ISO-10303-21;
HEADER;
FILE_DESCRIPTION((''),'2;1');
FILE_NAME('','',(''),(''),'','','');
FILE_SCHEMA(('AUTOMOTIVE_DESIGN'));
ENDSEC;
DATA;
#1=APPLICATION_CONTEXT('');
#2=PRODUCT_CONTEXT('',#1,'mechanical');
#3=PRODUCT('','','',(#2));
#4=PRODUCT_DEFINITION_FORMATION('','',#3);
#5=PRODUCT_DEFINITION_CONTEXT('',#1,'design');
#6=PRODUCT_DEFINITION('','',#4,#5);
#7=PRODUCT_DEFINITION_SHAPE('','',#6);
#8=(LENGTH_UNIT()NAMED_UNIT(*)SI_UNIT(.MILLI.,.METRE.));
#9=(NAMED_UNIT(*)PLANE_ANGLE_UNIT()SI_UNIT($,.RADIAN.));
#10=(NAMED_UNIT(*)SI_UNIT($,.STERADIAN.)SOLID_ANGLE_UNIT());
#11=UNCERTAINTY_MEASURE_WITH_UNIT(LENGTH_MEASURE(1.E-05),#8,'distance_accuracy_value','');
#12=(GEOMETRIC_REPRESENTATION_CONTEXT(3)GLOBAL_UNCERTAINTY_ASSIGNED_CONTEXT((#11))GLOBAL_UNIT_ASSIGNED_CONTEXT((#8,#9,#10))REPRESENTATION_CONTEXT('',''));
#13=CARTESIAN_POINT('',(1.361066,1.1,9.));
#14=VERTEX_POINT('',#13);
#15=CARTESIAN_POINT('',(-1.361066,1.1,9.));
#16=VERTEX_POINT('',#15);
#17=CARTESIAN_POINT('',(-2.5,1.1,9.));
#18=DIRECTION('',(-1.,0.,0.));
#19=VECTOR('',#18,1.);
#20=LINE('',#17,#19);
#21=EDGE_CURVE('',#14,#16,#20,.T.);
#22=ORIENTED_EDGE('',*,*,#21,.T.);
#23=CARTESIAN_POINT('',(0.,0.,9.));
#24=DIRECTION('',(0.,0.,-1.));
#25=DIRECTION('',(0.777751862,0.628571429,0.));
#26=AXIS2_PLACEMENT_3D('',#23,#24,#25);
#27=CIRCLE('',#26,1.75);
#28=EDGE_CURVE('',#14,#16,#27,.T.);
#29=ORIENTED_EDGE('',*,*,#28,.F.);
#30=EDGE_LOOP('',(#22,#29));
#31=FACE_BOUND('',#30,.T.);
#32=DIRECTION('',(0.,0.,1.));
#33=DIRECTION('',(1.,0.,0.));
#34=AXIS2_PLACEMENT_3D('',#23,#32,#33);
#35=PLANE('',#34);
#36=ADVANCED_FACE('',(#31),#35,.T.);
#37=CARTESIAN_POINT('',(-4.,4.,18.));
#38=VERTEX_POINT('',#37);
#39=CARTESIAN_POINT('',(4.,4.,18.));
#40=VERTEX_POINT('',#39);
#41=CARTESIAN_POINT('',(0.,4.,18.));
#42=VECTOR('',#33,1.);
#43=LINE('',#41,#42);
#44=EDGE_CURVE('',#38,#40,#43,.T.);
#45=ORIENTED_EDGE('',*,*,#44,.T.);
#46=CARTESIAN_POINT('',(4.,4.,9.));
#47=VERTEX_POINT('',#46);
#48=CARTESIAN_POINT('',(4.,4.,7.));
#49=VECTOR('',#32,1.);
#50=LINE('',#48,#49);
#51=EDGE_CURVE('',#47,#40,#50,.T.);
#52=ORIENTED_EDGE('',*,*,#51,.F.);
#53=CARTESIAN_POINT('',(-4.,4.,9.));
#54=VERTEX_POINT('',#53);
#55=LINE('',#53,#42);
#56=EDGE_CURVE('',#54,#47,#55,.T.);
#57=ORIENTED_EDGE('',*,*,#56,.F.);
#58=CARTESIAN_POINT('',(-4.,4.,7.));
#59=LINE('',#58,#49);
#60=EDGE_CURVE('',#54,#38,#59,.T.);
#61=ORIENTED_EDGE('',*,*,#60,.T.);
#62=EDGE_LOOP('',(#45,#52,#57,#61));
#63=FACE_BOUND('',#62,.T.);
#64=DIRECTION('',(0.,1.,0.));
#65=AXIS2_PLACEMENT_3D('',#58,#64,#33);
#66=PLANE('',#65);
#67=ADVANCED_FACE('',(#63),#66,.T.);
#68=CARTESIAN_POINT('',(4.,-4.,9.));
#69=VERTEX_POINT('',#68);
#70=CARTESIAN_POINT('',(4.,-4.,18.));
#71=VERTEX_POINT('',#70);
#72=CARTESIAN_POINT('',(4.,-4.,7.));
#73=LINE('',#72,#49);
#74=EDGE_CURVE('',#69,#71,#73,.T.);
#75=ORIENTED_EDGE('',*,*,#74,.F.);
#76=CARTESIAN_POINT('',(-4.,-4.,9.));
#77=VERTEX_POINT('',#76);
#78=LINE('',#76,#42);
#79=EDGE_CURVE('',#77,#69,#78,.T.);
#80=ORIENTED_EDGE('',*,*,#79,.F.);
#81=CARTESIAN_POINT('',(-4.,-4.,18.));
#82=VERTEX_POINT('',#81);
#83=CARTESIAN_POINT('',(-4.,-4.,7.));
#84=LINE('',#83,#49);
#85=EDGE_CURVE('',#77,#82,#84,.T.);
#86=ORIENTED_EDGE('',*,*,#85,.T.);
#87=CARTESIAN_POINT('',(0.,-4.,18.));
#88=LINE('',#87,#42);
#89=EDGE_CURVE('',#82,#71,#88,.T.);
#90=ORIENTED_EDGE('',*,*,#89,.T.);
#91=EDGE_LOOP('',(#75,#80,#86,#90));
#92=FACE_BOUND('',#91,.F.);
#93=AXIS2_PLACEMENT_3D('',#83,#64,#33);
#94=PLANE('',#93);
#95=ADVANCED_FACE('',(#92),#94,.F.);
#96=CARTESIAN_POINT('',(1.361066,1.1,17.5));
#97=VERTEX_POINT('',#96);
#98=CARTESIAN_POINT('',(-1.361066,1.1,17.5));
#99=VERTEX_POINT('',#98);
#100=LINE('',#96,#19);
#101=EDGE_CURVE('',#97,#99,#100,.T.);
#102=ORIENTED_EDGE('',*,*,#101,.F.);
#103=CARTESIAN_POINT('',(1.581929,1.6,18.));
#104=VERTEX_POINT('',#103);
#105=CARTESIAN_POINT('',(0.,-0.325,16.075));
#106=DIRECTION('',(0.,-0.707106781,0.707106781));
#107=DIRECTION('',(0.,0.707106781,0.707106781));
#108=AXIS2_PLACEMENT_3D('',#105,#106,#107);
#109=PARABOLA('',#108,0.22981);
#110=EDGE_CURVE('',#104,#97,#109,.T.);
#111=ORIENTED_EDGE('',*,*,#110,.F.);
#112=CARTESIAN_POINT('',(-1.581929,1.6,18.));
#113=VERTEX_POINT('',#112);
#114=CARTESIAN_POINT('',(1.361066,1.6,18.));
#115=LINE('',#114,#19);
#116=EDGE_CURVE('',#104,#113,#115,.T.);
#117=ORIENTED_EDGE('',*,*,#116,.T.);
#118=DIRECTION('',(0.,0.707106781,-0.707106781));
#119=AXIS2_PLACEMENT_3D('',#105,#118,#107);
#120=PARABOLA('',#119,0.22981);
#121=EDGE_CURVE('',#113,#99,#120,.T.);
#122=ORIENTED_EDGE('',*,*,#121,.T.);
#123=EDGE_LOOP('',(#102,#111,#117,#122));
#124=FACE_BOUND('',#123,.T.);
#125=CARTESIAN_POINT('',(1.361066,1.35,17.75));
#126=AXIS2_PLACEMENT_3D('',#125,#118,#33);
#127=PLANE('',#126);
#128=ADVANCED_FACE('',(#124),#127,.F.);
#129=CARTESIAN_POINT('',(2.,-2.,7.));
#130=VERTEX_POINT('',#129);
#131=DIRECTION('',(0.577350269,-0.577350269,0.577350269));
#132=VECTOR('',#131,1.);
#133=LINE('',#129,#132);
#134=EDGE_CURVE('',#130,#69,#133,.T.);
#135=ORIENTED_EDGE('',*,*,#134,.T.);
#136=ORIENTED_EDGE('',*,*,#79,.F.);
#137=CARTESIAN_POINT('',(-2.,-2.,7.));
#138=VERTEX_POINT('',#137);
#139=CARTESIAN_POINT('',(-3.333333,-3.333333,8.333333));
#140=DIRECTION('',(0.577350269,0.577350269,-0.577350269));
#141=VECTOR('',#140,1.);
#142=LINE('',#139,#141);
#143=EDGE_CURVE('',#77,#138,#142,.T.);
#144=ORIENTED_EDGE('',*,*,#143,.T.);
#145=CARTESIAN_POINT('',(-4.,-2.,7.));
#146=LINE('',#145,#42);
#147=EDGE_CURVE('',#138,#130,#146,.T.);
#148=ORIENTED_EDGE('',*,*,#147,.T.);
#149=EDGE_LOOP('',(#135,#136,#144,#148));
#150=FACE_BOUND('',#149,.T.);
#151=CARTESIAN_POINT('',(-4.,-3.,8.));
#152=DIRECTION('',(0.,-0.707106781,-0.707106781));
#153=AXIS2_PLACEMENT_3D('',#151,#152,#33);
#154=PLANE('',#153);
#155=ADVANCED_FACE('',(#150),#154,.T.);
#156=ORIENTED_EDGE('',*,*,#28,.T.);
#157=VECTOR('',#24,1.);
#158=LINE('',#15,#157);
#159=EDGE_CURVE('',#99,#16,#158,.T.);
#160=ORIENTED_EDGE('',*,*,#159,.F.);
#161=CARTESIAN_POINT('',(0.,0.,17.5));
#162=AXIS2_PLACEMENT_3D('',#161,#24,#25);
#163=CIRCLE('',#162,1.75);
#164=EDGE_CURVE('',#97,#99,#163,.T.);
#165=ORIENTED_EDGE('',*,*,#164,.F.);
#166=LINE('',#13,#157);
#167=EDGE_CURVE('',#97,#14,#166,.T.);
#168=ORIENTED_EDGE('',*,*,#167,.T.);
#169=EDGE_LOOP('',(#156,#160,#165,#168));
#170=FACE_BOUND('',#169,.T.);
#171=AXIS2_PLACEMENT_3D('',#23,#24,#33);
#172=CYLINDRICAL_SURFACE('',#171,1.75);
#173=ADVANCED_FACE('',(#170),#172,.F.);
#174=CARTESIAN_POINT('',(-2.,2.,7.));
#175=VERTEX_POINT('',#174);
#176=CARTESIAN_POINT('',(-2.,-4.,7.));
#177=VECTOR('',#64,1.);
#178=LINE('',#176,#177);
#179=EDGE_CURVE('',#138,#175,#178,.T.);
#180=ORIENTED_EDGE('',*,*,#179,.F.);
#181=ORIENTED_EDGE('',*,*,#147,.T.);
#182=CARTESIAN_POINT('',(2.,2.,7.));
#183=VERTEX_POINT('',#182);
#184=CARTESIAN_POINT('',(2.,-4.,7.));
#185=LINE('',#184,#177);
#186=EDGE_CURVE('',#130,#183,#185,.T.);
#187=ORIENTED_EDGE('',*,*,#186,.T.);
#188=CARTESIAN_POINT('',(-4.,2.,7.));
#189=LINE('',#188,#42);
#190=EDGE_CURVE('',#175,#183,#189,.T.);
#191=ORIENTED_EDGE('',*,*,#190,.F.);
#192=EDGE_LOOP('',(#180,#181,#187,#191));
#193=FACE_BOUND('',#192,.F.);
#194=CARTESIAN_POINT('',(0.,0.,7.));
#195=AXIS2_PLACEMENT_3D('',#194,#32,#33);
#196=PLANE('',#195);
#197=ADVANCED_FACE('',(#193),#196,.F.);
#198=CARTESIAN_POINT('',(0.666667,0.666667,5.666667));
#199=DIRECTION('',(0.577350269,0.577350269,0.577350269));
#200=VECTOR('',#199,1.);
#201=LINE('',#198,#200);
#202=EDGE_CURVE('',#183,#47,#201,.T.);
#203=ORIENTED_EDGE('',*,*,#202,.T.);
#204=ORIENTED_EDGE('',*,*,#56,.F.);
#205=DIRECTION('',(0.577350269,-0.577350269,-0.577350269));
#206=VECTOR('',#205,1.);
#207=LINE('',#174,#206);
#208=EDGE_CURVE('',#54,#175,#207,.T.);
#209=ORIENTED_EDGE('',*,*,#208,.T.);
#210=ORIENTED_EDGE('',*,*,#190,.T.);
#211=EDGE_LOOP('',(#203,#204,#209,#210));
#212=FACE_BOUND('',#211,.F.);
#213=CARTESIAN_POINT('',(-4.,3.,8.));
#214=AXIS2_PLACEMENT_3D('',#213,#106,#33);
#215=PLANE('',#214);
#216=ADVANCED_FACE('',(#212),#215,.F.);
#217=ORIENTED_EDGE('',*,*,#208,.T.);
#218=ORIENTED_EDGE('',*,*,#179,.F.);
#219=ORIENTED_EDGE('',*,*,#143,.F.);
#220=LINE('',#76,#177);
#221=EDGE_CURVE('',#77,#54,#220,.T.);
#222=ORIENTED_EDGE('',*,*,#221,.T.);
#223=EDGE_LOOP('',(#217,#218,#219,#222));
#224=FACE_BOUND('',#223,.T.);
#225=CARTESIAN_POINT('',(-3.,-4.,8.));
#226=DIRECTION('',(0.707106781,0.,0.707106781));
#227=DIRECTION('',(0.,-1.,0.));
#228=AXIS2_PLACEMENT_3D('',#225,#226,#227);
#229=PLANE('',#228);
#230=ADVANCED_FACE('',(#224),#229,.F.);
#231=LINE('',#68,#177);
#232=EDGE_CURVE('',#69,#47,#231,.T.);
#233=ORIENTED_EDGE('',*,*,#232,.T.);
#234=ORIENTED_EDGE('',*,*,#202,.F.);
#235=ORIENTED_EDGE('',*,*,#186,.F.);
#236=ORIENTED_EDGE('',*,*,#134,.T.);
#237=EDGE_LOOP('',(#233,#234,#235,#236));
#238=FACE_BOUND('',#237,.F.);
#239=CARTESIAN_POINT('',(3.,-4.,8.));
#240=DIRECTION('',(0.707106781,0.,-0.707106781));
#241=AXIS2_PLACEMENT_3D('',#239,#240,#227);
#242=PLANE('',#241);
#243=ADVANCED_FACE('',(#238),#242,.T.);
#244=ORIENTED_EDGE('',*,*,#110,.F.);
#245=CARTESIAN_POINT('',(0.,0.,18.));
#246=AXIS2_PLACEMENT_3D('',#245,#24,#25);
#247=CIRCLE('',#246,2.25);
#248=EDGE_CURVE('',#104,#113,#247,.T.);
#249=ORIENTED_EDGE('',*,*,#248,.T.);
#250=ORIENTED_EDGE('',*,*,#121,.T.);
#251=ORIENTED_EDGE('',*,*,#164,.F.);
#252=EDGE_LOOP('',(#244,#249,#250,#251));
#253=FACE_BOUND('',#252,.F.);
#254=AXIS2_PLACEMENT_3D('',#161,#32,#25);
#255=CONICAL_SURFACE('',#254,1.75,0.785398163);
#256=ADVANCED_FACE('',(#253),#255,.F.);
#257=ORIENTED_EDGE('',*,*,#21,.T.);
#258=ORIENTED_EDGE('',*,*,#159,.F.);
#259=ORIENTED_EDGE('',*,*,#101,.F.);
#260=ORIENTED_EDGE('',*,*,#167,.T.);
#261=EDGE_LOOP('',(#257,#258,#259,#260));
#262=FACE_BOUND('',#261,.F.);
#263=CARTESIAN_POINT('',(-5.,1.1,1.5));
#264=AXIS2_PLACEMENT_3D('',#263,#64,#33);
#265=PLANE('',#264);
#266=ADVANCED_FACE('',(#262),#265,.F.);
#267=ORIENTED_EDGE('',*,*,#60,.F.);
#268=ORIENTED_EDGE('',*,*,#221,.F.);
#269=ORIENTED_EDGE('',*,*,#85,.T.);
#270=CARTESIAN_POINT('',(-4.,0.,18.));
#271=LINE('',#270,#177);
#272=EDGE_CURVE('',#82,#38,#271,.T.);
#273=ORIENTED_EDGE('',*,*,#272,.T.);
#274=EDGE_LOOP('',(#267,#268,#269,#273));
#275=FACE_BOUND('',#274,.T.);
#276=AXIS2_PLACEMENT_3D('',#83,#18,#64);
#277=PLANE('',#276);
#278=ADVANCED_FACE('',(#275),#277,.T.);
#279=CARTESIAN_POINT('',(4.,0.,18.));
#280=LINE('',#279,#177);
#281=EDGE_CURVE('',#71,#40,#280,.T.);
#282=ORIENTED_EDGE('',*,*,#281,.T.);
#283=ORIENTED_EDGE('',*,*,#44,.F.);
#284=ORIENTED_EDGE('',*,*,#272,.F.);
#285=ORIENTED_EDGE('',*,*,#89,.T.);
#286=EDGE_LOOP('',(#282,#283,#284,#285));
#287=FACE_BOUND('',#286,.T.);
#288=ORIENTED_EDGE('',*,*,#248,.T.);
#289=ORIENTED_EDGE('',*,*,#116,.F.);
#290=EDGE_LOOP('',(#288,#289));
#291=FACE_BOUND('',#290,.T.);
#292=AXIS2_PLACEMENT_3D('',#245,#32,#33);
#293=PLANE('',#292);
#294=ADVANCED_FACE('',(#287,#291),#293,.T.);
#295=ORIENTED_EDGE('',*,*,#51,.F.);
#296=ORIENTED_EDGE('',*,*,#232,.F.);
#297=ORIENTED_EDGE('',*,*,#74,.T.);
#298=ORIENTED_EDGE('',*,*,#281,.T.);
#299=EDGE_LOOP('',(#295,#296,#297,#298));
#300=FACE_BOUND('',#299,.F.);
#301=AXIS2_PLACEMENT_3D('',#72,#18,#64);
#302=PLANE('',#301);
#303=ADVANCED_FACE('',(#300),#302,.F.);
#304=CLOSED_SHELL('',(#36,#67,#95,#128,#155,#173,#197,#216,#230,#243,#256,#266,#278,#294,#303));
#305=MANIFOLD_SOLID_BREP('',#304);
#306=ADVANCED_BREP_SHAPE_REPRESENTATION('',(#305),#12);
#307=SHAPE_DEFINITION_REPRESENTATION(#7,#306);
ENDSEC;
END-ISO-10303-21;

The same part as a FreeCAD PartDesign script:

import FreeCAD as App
import Part
import Sketcher
from FreeCAD import Vector
Q = App.Units.Quantity


def edges_at(feature, points):
    """Names of the edges that pass closest to the given points."""
    edges = feature.Shape.Edges
    near = lambda p: min(range(len(edges)), key=lambda i: edges[i].distToShape(Part.Vertex(*p))[0])
    return sorted({f"Edge{near(p) + 1}" for p in points})

doc = App.newDocument("Part")
params = doc.addObject("Spreadsheet::Sheet", "Params")
for row, (alias, value) in enumerate([
    ("sketch1_width", "10 mm"),
    ("pad1_length", "19 mm"),
    ("sketch2_diameter", "3.5 mm"),
    ("pad2_length", "17 mm"),
    ("sketch3_width", "8 mm"),
    ("pad3_length", "11 mm"),
    ("chamfer_size", "2 mm"),
    ("chamfer2_size", "0.5 mm"),
], start=1):
    params.set(f"A{row}", alias)
    params.set(f"B{row}", "=" + value)
    params.setAlias(f"B{row}", alias)

body = doc.addObject("PartDesign::Body", "Body")

# Sketch on XY plane
sketch1 = body.newObject("Sketcher::SketchObject", "Sketch")
sketch1.AttachmentSupport = (doc.getObject("XY_Plane"), [""])
sketch1.MapMode = "FlatFace"
sketch1.AttachmentOffset = App.Placement(Vector(0, 0, 1.5), App.Rotation())
sketch1.addGeometry([
    Part.LineSegment(Vector(-5, 11, 0), Vector(-5, 1, 0)),
    Part.LineSegment(Vector(-5, 1, 0), Vector(5, 1, 0)),
    Part.LineSegment(Vector(5, 1, 0), Vector(5, 11, 0)),
    Part.LineSegment(Vector(5, 11, 0), Vector(-5, 11, 0)),
], False)
sketch1.addConstraint([
    Sketcher.Constraint("Coincident", 0, 2, 1, 1),
    Sketcher.Constraint("Coincident", 1, 2, 2, 1),
    Sketcher.Constraint("Coincident", 2, 2, 3, 1),
    Sketcher.Constraint("Coincident", 3, 2, 0, 1),
    Sketcher.Constraint("Vertical", 0),
    Sketcher.Constraint("Horizontal", 1),
    Sketcher.Constraint("Vertical", 2),
    Sketcher.Constraint("Horizontal", 3),
    Sketcher.Constraint("Equal", 3, 0),
    Sketcher.Constraint("DistanceX", 1, 1, 1, 2, Q("10 mm")),
    Sketcher.Constraint("DistanceX", 0, 2, -1, 1, Q("5 mm")),
    Sketcher.Constraint("DistanceY", -1, 1, 0, 2, Q("1.1 mm")),
])
sketch1.setExpression("Constraints[9]", "Params.sketch1_width")
pad1 = body.newObject("PartDesign::Pad", "Pad")
pad1.Profile = sketch1
pad1.setExpression("Length", "Params.pad1_length")
body2 = doc.addObject("PartDesign::Body", "Body001")

# Sketch on XY plane
sketch2 = body2.newObject("Sketcher::SketchObject", "Sketch001")
sketch2.AttachmentSupport = (doc.getObject("XY_Plane001"), [""])
sketch2.MapMode = "FlatFace"
sketch2.AttachmentOffset = App.Placement(Vector(0, 0, 9), App.Rotation())
sketch2.addGeometry(Part.Circle(Vector(0, 0, 0), Vector(0, 0, 1), 1.8), False)
sketch2.addConstraint([
    Sketcher.Constraint("Coincident", 0, 3, -1, 1),
    Sketcher.Constraint("Diameter", 0, Q("3.5 mm")),
])
sketch2.setExpression("Constraints[1]", "Params.sketch2_diameter")
pad2 = body2.newObject("PartDesign::Pad", "Pad001")
pad2.Profile = sketch2
pad2.setExpression("Length", "Params.pad2_length")
doc.recompute()

boolean = body2.newObject("PartDesign::Boolean", "Boolean")
boolean.Type = "Cut"
boolean.addObjects([body])
body3 = doc.addObject("PartDesign::Body", "Body002")

# Sketch on XY plane
sketch3 = body3.newObject("Sketcher::SketchObject", "Sketch002")
sketch3.AttachmentSupport = (doc.getObject("XY_Plane002"), [""])
sketch3.MapMode = "FlatFace"
sketch3.AttachmentOffset = App.Placement(Vector(0, 0, 7), App.Rotation())
sketch3.addGeometry([
    Part.LineSegment(Vector(-4, 4, 0), Vector(-4, -4, 0)),
    Part.LineSegment(Vector(-4, -4, 0), Vector(4, -4, 0)),
    Part.LineSegment(Vector(4, -4, 0), Vector(4, 4, 0)),
    Part.LineSegment(Vector(4, 4, 0), Vector(-4, 4, 0)),
], False)
sketch3.addConstraint([
    Sketcher.Constraint("Coincident", 0, 2, 1, 1),
    Sketcher.Constraint("Coincident", 1, 2, 2, 1),
    Sketcher.Constraint("Coincident", 2, 2, 3, 1),
    Sketcher.Constraint("Coincident", 3, 2, 0, 1),
    Sketcher.Constraint("Vertical", 0),
    Sketcher.Constraint("Horizontal", 1),
    Sketcher.Constraint("Vertical", 2),
    Sketcher.Constraint("Horizontal", 3),
    Sketcher.Constraint("Symmetric", 0, 2, 2, 2, -1, 1),
    Sketcher.Constraint("Equal", 3, 0),
    Sketcher.Constraint("DistanceX", 1, 1, 1, 2, Q("8 mm")),
])
sketch3.setExpression("Constraints[10]", "Params.sketch3_width")
pad3 = body3.newObject("PartDesign::Pad", "Pad002")
pad3.Profile = sketch3
pad3.setExpression("Length", "Params.pad3_length")
doc.recompute()

boolean2 = body3.newObject("PartDesign::Boolean", "Boolean001")
boolean2.Type = "Cut"
boolean2.addObjects([body2])
doc.recompute()

chamfer = body3.newObject("PartDesign::Chamfer", "Chamfer")
chamfer.Base = (boolean2, edges_at(boolean2, [
    (-4, 0, 7),
    (0, -4, 7),
    (0, 4, 7),
    (4, 0, 7),
]))
chamfer.setExpression("Size", "Params.chamfer_size")
doc.recompute()

chamfer2 = body3.newObject("PartDesign::Chamfer", "Chamfer001")
chamfer2.Base = (chamfer, edges_at(chamfer, [(0, -1.75, 18), (0, 1.1, 18), (0, -1.75, 18)]))
chamfer2.setExpression("Size", "Params.chamfer2_size")

doc.recompute()
